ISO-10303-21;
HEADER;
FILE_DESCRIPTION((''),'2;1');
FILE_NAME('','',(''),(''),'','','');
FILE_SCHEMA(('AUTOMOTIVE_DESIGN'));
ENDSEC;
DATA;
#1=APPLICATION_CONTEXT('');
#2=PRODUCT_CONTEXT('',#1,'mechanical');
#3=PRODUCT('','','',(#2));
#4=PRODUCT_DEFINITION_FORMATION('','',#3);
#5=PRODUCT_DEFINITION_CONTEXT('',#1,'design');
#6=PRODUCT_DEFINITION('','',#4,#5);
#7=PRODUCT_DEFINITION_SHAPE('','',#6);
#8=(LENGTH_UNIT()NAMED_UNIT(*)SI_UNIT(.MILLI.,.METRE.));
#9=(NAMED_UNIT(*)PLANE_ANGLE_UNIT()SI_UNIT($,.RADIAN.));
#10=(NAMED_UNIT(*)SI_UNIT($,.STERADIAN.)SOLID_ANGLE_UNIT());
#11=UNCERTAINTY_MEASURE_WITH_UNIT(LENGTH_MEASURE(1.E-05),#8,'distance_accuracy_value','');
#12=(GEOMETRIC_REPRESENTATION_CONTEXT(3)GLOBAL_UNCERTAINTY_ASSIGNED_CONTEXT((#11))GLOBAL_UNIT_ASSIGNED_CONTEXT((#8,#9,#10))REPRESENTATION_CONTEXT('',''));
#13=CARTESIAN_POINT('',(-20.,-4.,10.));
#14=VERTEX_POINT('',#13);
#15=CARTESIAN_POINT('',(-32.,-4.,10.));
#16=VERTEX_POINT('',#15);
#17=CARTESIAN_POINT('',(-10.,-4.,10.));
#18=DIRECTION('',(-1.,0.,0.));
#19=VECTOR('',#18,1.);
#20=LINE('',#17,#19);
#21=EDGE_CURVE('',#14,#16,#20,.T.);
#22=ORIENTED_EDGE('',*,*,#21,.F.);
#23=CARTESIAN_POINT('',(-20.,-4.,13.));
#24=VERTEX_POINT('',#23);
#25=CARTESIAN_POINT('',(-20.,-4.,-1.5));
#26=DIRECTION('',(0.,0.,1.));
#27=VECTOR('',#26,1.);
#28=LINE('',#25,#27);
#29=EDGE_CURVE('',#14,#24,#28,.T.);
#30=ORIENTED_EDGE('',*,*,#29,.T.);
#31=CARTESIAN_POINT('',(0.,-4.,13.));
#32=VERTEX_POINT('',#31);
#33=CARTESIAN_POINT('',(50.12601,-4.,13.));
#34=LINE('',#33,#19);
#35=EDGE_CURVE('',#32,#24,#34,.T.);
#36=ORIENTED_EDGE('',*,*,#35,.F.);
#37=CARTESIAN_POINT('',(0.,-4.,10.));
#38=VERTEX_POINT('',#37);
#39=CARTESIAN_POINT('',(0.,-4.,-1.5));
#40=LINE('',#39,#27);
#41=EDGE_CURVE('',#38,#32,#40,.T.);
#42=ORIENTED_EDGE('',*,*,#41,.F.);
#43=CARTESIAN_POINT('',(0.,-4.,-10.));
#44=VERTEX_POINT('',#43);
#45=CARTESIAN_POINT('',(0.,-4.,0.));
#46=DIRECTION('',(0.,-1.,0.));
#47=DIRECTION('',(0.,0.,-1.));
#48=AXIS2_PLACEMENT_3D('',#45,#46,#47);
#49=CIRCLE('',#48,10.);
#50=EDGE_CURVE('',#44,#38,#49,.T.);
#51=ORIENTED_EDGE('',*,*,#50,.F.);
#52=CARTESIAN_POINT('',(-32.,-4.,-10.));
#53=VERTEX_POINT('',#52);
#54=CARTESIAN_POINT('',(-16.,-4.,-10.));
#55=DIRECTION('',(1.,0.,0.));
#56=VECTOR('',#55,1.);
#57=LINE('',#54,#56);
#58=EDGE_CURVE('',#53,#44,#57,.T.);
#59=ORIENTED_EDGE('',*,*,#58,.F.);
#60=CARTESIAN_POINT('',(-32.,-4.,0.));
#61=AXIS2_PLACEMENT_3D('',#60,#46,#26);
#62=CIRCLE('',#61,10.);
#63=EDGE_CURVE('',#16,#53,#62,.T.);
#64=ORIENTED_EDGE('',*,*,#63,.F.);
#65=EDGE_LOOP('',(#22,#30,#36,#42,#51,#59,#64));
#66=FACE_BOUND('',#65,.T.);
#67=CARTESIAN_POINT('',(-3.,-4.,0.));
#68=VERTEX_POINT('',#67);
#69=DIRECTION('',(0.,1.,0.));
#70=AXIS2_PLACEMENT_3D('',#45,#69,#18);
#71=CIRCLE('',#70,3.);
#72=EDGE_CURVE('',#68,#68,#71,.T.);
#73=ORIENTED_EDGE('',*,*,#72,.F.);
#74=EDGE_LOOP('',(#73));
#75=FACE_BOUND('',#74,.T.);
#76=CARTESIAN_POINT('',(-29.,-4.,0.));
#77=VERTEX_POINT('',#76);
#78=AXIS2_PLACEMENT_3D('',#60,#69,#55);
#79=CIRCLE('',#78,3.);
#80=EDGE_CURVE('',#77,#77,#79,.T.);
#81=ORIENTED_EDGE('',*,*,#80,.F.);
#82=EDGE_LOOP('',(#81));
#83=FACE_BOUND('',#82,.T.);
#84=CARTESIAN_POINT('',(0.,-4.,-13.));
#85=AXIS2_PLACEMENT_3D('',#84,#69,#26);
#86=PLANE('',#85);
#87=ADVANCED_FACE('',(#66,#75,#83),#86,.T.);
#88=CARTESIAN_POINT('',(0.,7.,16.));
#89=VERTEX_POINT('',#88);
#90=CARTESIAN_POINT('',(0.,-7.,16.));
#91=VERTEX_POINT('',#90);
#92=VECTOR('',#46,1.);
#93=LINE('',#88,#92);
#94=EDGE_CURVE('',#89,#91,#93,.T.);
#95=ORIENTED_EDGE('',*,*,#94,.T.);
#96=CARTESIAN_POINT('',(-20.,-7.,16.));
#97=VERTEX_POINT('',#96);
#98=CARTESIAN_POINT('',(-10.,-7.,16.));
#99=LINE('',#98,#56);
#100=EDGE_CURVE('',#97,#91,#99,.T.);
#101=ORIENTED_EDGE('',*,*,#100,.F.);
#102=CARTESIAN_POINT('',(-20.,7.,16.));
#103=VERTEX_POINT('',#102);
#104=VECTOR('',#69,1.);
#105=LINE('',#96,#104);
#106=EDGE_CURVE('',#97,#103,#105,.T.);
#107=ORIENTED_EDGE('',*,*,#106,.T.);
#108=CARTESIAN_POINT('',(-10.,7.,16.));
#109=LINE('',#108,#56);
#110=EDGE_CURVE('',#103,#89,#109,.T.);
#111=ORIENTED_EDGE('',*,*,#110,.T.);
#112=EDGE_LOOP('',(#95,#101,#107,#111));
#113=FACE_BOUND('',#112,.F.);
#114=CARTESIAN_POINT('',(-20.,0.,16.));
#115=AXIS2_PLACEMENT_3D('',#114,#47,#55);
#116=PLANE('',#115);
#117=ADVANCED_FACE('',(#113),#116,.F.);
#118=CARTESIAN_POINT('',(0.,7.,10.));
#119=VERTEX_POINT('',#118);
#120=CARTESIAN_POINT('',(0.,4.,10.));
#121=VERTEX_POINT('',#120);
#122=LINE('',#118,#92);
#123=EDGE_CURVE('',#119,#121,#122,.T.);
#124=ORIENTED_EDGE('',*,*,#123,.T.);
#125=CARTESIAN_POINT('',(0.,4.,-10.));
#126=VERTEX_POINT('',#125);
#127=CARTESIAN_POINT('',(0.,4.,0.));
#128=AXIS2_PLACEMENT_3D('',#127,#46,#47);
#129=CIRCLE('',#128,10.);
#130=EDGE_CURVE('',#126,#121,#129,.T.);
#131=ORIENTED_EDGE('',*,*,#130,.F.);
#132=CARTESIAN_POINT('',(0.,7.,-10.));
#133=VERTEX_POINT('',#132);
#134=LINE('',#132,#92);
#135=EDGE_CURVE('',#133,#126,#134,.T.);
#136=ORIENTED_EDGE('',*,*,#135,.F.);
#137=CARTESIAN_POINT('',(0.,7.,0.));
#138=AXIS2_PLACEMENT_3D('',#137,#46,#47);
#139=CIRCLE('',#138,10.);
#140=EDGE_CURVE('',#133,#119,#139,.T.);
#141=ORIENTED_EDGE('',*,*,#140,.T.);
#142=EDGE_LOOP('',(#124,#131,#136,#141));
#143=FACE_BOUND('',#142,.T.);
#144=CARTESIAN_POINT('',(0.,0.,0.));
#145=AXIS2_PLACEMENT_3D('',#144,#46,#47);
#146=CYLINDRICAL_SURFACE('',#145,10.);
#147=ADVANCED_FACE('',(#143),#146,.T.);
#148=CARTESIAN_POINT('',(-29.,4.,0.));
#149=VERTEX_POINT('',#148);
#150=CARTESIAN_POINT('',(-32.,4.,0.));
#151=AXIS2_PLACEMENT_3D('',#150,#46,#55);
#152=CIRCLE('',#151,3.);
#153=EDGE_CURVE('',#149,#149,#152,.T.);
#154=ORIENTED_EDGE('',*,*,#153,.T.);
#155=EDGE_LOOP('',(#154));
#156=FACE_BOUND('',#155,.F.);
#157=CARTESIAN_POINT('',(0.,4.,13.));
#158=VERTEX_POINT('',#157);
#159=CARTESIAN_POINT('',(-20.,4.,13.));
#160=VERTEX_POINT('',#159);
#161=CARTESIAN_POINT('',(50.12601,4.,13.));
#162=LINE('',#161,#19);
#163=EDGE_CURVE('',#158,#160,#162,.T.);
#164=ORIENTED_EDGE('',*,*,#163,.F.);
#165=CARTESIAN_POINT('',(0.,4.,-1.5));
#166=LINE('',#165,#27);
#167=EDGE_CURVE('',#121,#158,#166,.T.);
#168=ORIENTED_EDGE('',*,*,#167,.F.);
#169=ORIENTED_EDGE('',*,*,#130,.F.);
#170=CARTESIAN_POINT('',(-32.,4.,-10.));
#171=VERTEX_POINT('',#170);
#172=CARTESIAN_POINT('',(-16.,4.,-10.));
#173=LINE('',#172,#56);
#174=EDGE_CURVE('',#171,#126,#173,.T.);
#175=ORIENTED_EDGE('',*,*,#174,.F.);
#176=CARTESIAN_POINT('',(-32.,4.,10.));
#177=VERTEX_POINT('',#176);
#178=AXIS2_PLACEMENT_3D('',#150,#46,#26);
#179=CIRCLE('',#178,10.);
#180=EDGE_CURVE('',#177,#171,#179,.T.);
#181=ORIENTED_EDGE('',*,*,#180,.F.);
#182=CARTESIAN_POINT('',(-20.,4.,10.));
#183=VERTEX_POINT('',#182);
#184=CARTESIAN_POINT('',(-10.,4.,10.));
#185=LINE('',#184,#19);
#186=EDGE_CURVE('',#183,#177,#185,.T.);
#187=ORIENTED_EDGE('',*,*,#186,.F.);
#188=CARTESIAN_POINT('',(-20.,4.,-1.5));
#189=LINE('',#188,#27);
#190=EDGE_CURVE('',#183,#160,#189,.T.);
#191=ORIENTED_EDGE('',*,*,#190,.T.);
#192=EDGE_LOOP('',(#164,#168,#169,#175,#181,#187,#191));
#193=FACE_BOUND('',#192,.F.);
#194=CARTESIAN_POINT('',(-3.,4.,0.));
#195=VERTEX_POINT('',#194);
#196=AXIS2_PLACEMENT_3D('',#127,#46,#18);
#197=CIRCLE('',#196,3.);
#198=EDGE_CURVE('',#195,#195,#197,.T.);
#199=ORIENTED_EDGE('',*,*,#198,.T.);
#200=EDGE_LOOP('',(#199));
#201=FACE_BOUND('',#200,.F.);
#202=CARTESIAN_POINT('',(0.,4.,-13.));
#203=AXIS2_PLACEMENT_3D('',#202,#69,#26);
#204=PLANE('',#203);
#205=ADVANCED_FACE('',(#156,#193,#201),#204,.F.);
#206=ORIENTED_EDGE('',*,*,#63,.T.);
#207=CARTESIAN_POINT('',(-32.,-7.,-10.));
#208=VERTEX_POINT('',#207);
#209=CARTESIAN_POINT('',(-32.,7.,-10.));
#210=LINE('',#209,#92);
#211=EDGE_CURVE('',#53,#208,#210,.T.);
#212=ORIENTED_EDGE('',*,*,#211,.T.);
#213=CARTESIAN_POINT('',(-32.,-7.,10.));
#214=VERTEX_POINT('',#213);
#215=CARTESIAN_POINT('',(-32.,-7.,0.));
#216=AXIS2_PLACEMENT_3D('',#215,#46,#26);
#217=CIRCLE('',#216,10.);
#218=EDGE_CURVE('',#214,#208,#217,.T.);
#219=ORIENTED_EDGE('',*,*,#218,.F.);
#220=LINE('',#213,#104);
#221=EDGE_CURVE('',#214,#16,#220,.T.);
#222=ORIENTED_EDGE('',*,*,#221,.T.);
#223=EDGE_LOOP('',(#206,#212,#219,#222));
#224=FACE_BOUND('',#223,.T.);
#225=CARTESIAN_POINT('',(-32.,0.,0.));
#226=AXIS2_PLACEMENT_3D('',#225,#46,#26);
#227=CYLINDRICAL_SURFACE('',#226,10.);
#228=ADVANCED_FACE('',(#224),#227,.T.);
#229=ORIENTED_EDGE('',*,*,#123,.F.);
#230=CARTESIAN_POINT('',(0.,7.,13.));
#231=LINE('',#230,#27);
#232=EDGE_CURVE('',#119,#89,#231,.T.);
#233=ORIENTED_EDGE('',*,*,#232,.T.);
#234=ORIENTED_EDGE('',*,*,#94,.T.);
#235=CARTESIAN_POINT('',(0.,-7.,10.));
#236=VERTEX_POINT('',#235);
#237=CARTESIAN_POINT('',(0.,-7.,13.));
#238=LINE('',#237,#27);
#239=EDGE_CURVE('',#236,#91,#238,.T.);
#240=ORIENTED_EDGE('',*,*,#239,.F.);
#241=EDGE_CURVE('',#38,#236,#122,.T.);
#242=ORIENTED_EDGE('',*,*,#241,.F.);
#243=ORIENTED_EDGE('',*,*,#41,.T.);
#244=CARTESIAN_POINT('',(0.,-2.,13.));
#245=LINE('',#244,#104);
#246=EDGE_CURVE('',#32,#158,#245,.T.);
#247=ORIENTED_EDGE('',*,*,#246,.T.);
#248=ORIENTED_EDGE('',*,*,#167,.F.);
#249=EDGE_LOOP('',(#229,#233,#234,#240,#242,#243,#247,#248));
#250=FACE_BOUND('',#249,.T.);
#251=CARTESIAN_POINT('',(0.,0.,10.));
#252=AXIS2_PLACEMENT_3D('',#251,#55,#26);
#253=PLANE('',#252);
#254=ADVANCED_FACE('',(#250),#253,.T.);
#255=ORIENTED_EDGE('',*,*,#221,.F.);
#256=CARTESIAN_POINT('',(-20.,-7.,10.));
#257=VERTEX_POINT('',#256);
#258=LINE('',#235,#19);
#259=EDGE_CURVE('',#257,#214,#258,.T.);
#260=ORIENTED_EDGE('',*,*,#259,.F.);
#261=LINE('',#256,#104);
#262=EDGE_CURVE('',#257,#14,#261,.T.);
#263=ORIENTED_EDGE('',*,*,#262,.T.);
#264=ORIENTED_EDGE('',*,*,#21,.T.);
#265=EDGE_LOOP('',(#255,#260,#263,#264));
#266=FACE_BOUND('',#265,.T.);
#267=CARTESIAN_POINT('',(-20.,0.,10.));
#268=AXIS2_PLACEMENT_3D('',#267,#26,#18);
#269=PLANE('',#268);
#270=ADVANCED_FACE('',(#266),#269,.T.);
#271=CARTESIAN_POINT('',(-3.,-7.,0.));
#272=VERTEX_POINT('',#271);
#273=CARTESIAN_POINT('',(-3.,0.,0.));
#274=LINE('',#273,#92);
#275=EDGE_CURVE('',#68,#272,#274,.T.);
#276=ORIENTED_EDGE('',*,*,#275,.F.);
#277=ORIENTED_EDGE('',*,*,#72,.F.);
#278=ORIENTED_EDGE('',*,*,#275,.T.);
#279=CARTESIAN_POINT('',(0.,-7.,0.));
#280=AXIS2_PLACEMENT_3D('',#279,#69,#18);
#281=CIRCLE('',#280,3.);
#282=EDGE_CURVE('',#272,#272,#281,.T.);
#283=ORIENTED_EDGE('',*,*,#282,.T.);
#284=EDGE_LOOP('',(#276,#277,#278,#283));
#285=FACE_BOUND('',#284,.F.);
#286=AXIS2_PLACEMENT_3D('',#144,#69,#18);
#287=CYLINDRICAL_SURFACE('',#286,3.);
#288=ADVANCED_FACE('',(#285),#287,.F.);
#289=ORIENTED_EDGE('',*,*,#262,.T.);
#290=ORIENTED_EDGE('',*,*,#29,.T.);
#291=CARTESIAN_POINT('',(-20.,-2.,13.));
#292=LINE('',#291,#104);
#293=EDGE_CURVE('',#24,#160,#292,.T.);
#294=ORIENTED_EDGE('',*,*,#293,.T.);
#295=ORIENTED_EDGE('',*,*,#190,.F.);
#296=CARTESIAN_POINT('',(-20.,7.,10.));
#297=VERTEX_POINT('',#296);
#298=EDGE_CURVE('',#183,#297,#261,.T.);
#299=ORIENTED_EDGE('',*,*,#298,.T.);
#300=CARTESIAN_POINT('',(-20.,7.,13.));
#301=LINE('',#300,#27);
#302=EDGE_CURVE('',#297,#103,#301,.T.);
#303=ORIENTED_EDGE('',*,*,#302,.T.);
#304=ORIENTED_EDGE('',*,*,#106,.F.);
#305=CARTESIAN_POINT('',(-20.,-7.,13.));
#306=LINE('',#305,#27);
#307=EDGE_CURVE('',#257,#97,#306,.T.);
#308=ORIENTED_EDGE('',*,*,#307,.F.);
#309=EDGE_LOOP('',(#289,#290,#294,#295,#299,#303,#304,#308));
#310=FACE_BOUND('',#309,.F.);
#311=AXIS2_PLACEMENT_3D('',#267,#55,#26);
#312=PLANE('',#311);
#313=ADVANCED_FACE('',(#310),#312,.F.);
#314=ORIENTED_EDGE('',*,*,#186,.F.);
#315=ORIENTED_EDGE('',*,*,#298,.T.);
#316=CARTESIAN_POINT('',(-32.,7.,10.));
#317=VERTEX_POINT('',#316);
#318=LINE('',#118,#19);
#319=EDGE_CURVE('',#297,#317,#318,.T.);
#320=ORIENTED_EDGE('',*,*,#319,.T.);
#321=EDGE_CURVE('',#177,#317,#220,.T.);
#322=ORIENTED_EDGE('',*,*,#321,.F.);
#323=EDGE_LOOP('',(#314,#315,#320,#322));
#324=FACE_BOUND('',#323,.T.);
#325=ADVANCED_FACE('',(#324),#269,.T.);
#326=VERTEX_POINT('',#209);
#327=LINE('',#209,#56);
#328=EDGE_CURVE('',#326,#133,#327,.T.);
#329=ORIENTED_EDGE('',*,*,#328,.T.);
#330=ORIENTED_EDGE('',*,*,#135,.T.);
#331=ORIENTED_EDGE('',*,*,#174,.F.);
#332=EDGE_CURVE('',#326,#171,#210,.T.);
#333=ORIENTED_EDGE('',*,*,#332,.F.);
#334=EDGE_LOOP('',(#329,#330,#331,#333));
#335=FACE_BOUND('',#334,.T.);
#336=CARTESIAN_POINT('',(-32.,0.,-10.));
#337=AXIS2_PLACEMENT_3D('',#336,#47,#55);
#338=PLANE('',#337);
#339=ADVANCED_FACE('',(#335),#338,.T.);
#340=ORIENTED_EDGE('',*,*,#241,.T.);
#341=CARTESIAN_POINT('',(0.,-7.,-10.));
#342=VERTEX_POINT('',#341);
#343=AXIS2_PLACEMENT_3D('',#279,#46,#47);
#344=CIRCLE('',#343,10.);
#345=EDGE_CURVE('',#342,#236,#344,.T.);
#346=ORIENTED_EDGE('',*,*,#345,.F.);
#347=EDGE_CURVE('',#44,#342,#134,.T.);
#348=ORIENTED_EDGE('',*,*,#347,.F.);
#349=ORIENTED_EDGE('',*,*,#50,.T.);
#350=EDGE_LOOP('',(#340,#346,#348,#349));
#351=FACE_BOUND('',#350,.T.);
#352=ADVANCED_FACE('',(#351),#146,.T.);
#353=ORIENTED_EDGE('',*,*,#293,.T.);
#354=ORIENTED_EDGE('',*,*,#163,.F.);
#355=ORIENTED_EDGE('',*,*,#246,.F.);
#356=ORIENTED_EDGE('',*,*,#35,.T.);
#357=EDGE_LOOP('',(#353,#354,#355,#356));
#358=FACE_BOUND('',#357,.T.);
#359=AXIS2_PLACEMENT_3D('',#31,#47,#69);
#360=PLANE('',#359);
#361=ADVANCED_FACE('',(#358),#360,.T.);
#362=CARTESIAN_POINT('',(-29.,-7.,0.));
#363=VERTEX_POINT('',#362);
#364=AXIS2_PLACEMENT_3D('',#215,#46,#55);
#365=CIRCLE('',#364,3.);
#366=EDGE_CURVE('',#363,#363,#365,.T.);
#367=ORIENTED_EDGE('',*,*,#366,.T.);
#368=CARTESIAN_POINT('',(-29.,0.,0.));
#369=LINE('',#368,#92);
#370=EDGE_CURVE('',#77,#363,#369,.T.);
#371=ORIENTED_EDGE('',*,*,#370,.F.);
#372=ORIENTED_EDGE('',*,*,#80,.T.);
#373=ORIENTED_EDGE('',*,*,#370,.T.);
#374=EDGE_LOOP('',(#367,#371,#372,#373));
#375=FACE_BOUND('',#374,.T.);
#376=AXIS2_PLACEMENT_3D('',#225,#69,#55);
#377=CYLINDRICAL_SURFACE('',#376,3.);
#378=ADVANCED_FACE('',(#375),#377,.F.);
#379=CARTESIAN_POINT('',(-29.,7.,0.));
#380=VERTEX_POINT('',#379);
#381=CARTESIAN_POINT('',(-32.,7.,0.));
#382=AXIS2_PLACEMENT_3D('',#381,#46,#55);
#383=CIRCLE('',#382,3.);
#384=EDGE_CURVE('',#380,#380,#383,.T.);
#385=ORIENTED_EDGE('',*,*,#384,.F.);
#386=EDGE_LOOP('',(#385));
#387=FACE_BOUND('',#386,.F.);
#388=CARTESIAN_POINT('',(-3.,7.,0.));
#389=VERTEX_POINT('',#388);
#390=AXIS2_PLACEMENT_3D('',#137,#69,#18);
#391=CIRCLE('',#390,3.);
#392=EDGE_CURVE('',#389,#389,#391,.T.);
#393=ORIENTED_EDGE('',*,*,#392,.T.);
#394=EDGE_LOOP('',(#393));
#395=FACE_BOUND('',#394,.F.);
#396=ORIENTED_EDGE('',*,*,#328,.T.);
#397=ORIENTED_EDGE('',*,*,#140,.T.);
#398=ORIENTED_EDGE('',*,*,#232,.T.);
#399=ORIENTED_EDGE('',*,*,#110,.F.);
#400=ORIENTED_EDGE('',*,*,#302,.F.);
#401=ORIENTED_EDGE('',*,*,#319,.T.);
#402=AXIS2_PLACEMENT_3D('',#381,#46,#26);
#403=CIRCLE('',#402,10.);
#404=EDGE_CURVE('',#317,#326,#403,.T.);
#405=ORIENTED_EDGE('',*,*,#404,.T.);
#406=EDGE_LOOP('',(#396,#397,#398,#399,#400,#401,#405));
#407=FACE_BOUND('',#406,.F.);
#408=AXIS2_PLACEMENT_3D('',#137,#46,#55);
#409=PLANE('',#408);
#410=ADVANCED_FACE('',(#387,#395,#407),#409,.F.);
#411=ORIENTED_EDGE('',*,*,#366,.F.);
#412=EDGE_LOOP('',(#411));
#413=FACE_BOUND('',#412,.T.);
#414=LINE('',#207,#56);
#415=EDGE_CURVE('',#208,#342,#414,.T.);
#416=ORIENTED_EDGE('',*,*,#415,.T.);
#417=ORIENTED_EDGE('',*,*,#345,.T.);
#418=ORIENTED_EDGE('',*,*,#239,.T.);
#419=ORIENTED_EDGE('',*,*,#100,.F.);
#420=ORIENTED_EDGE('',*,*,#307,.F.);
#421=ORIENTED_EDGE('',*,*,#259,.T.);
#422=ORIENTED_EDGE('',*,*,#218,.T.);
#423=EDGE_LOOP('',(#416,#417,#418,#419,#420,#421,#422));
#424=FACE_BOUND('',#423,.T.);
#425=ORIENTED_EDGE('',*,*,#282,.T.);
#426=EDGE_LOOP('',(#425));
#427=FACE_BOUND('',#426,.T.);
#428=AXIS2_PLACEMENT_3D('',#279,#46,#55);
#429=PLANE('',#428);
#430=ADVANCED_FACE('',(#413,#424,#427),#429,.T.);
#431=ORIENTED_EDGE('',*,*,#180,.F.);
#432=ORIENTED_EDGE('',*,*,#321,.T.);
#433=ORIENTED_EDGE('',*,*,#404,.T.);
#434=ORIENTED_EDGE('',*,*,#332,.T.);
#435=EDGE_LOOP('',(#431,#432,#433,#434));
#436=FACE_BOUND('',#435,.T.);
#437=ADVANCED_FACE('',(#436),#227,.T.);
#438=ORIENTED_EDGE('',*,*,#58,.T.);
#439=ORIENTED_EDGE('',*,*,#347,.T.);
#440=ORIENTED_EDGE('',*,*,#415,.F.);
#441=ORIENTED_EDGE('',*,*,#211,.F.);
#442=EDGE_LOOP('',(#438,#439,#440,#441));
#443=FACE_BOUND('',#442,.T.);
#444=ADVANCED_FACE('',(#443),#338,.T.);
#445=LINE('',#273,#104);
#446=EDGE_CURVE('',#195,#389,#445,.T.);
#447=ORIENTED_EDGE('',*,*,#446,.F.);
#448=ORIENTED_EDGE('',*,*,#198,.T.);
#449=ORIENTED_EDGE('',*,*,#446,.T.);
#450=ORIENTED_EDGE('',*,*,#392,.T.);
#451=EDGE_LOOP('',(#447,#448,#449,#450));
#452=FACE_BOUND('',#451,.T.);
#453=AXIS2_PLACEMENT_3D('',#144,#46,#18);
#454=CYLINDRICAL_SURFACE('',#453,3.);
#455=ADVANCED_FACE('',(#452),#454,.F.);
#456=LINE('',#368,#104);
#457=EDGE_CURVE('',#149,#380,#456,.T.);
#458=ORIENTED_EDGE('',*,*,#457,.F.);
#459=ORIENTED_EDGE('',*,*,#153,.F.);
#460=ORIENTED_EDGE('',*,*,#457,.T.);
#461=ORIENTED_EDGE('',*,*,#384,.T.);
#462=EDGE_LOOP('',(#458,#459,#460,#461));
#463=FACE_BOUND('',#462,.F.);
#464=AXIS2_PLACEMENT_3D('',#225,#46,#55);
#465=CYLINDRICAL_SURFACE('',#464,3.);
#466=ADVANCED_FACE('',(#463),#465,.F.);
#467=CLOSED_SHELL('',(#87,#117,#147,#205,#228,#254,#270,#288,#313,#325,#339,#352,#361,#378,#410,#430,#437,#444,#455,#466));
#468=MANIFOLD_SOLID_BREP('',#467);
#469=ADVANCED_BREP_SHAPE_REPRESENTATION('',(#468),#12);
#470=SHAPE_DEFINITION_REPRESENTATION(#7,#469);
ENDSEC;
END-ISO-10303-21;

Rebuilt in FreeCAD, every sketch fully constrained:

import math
import FreeCAD as App
import Part
import Sketcher
from FreeCAD import Vector
Q = App.Units.Quantity

doc = App.newDocument("Part")
body = doc.addObject("PartDesign::Body", "Body")

# Sketch on XZ plane
sketch1 = doc.addObject("Sketcher::SketchObject", "Sketch")
body.addObject(sketch1)
sketch1.AttachmentSupport = (doc.XZ_Plane, [""])
sketch1.MapMode = "FlatFace"
sketch1.addGeometry(Part.ArcOfCircle(Part.Circle(Vector(-32, 0, 0), Vector(0, 0, 1), 10), math.radians(90), math.radians(270)), False)
sketch1.addGeometry(Part.LineSegment(Vector(-32, -10, 0), Vector(0, -10, 0)), False)
sketch1.addGeometry(Part.ArcOfCircle(Part.Circle(Vector(0, 0, 0), Vector(0, 0, 1), 10), math.radians(-90), math.radians(90)), False)
sketch1.addGeometry(Part.LineSegment(Vector(0, 10, 0), Vector(0, 16, 0)), False)
sketch1.addGeometry(Part.LineSegment(Vector(0, 16, 0), Vector(-20, 16, 0)), False)
sketch1.addGeometry(Part.LineSegment(Vector(-20, 16, 0), Vector(-20, 10, 0)), False)
sketch1.addGeometry(Part.LineSegment(Vector(-20, 10, 0), Vector(-32, 10, 0)), False)
sketch1.addGeometry(Part.Circle(Vector(-32, 0, 0), Vector(0, 0, 1), 3), False)
sketch1.addGeometry(Part.Circle(Vector(0, 0, 0), Vector(0, 0, 1), 3), False)
sketch1.addConstraint(Sketcher.Constraint("Tangent", 0, 2, 1, 1))
sketch1.addConstraint(Sketcher.Constraint("Tangent", 1, 2, 2, 1))
sketch1.addConstraint(Sketcher.Constraint("Coincident", 2, 2, 3, 1))
sketch1.addConstraint(Sketcher.Constraint("Coincident", 3, 2, 4, 1))
sketch1.addConstraint(Sketcher.Constraint("Coincident", 4, 2, 5, 1))
sketch1.addConstraint(Sketcher.Constraint("Coincident", 5, 2, 6, 1))
sketch1.addConstraint(Sketcher.Constraint("Tangent", 6, 2, 0, 1))
sketch1.addConstraint(Sketcher.Constraint("Horizontal", 1))
sketch1.addConstraint(Sketcher.Constraint("Vertical", 3))
sketch1.addConstraint(Sketcher.Constraint("Horizontal", 4))
sketch1.addConstraint(Sketcher.Constraint("Vertical", 5))
sketch1.addConstraint(Sketcher.Constraint("Horizontal", 6))
sketch1.addConstraint(Sketcher.Constraint("Coincident", 2, 3, -1, 1))
sketch1.addConstraint(Sketcher.Constraint("Coincident", 8, 3, -1, 1))
sketch1.addConstraint(Sketcher.Constraint("Coincident", 7, 3, 0, 3))
sketch1.addConstraint(Sketcher.Constraint("Equal", 0, 2))
sketch1.addConstraint(Sketcher.Constraint("Equal", 7, 8))
sketch1.addConstraint(Sketcher.Constraint("PointOnObject", 2, 2, -2))
sketch1.addConstraint(Sketcher.Constraint("Diameter", 7, Q("6 mm")))
sketch1.addConstraint(Sketcher.Constraint("Radius", 0, Q("10 mm")))
sketch1.addConstraint(Sketcher.Constraint("DistanceX", 1, 1, 1, 2, Q("32 mm")))
sketch1.addConstraint(Sketcher.Constraint("DistanceX", 4, 2, 4, 1, Q("20 mm")))
sketch1.addConstraint(Sketcher.Constraint("DistanceY", 3, 1, 3, 2, Q("6 mm")))
pad1 = doc.addObject("PartDesign::Pad", "Pad")
body.addObject(pad1)
pad1.Profile = sketch1
pad1.Length = 14
pad1.Midplane = True

# Sketch on YZ plane
sketch2 = doc.addObject("Sketcher::SketchObject", "Sketch001")
body.addObject(sketch2)
sketch2.AttachmentSupport = (doc.YZ_Plane, [""])
sketch2.MapMode = "FlatFace"
sketch2.addGeometry(Part.LineSegment(Vector(-4, 13, 0), Vector(-4, -13, 0)), False)
sketch2.addGeometry(Part.LineSegment(Vector(-4, -13, 0), Vector(4, -13, 0)), False)
sketch2.addGeometry(Part.LineSegment(Vector(4, -13, 0), Vector(4, 13, 0)), False)
sketch2.addGeometry(Part.LineSegment(Vector(4, 13, 0), Vector(-4, 13, 0)), False)
sketch2.addConstraint(Sketcher.Constraint("Coincident", 0, 2, 1, 1))
sketch2.addConstraint(Sketcher.Constraint("Coincident", 1, 2, 2, 1))
sketch2.addConstraint(Sketcher.Constraint("Coincident", 2, 2, 3, 1))
sketch2.addConstraint(Sketcher.Constraint("Coincident", 3, 2, 0, 1))
sketch2.addConstraint(Sketcher.Constraint("Vertical", 0))
sketch2.addConstraint(Sketcher.Constraint("Horizontal", 1))
sketch2.addConstraint(Sketcher.Constraint("Vertical", 2))
sketch2.addConstraint(Sketcher.Constraint("Horizontal", 3))
sketch2.addConstraint(Sketcher.Constraint("Symmetric", 0, 2, 2, 2, -1, 1))
sketch2.addConstraint(Sketcher.Constraint("DistanceX", 1, 1, 1, 2, Q("8 mm")))
sketch2.addConstraint(Sketcher.Constraint("DistanceY", 0, 2, 0, 1, Q("26 mm")))
pocket1 = doc.addObject("PartDesign::Pocket", "Pocket")
body.addObject(pocket1)
pocket1.Profile = sketch2
pocket1.Length = 100.25202
pocket1.Midplane = True

doc.recompute()
